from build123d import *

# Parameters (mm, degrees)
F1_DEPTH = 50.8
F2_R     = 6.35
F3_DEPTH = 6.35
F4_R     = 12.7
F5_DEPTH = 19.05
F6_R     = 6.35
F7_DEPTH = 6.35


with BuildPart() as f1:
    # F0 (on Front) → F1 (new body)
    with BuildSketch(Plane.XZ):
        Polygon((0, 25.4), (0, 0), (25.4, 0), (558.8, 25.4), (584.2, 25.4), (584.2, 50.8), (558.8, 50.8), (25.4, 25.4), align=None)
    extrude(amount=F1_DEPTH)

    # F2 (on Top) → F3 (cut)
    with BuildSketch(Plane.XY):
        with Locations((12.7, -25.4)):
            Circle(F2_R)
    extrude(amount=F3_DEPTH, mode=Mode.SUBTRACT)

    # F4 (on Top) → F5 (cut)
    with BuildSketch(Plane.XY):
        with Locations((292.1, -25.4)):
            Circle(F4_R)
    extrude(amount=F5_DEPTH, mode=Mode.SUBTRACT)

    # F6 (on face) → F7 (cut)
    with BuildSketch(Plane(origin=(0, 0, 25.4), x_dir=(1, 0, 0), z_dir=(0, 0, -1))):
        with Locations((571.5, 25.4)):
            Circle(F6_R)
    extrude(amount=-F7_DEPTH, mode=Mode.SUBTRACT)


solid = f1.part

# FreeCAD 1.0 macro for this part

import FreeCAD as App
import Part
import Sketcher
Q = App.Units.Quantity


def add_polygon(sketch, points):
    """Adds a closed chain of lines whose ends are joined by coincident constraints."""
    first, n = sketch.GeometryCount, len(points)
    for a, b in zip(points, points[1:] + points[:1]):
        sketch.addGeometry(Part.LineSegment(App.Vector(*a, 0), App.Vector(*b, 0)), False)
    for i in range(n):
        sketch.addConstraint(Sketcher.Constraint("Coincident", first + i, 2, first + (i + 1) % n, 1))

doc = App.newDocument("Part")
body = doc.addObject("PartDesign::Body", "Body")

# Sketch on XZ plane
sketch1 = body.newObject("Sketcher::SketchObject", "Sketch")
sketch1.AttachmentSupport = (doc.getObject("XZ_Plane"), [""])
sketch1.MapMode = "FlatFace"
add_polygon(sketch1, [(0, 25.4), (0, 0), (25.4, 0), (558.8, 25.4), (584.2, 25.4), (584.2, 50.8), (558.8, 50.8), (25.4, 25.4)])  # lines 0-7
sketch1.addConstraint(Sketcher.Constraint("Vertical", 0))
sketch1.addConstraint(Sketcher.Constraint("Horizontal", 1))
sketch1.addConstraint(Sketcher.Constraint("Horizontal", 3))
sketch1.addConstraint(Sketcher.Constraint("Vertical", 4))
sketch1.addConstraint(Sketcher.Constraint("Horizontal", 5))
sketch1.addConstraint(Sketcher.Constraint("Horizontal", 7))
sketch1.addConstraint(Sketcher.Constraint("Coincident", 0, 2, -1, 1))
sketch1.addConstraint(Sketcher.Constraint("Parallel", 2, 6))
sketch1.addConstraint(Sketcher.Constraint("Horizontal", 3, 2, 6, 2))
sketch1.addConstraint(Sketcher.Constraint("Vertical", 2, 2, 5, 2))
sketch1.addConstraint(Sketcher.Constraint("Vertical", 1, 2, 6, 2))
sketch1.addConstraint(Sketcher.Constraint("Equal", 1, 3))
sketch1.addConstraint(Sketcher.Constraint("Equal", 7, 0))
sketch1.addConstraint(Sketcher.Constraint("DistanceX", 1, 1, 1, 2, Q("1 in")))
sketch1.addConstraint(Sketcher.Constraint("DistanceX", -1, 1, 2, 2, Q("22 in")))
pad1 = body.newObject("PartDesign::Pad", "Pad")
pad1.Profile = sketch1
pad1.Length = Q("2 in")

# Sketch on XY plane
sketch2 = body.newObject("Sketcher::SketchObject", "Sketch001")
sketch2.AttachmentSupport = (doc.getObject("XY_Plane"), [""])
sketch2.MapMode = "FlatFace"
sketch2.addGeometry(Part.Circle(App.Vector(12.7, -25.4, 0), App.Vector(0, 0, 1), 6.35), False)
sketch2.addConstraint(Sketcher.Constraint("Diameter", 0, Q("0.5 in")))
sketch2.addConstraint(Sketcher.Constraint("DistanceY", 0, 3, -1, 1, Q("1 in")))
sketch2.addConstraint(Sketcher.Constraint("DistanceX", -1, 1, 0, 3, Q("0.5 in")))
pocket1 = body.newObject("PartDesign::Pocket", "Pocket")
pocket1.Profile = sketch2
pocket1.Length = Q("0.25 in")
pocket1.Reversed = True

# Sketch on XY plane
sketch3 = body.newObject("Sketcher::SketchObject", "Sketch002")
sketch3.AttachmentSupport = (doc.getObject("XY_Plane"), [""])
sketch3.MapMode = "FlatFace"
sketch3.addGeometry(Part.Circle(App.Vector(292.1, -25.4, 0), App.Vector(0, 0, 1), 12.7), False)
sketch3.addConstraint(Sketcher.Constraint("Diameter", 0, Q("1 in")))
sketch3.addConstraint(Sketcher.Constraint("DistanceY", 0, 3, -1, 1, Q("1 in")))
sketch3.addConstraint(Sketcher.Constraint("DistanceX", -1, 1, 0, 3, Q("11.5 in")))
pocket2 = body.newObject("PartDesign::Pocket", "Pocket001")
pocket2.Profile = sketch3
pocket2.Length = Q("0.75 in")
pocket2.Reversed = True

# Sketch on XY plane
sketch4 = body.newObject("Sketcher::SketchObject", "Sketch003")
sketch4.AttachmentSupport = (doc.getObject("XY_Plane"), [""])
sketch4.MapMode = "FlatFace"
sketch4.AttachmentOffset = App.Placement(App.Vector(0, 0, 1 * 25.4), App.Rotation())
sketch4.addGeometry(Part.Circle(App.Vector(571.5, -25.4, 0), App.Vector(0, 0, 1), 6.35), False)
sketch4.addConstraint(Sketcher.Constraint("Diameter", 0, Q("0.5 in")))
sketch4.addConstraint(Sketcher.Constraint("DistanceY", 0, 3, -1, 1, Q("1 in")))
sketch4.addConstraint(Sketcher.Constraint("DistanceX", -1, 1, 0, 3, Q("22.5 in")))
pocket3 = body.newObject("PartDesign::Pocket", "Pocket002")
pocket3.Profile = sketch4
pocket3.Length = Q("0.25 in")
pocket3.Reversed = True

doc.recompute()
